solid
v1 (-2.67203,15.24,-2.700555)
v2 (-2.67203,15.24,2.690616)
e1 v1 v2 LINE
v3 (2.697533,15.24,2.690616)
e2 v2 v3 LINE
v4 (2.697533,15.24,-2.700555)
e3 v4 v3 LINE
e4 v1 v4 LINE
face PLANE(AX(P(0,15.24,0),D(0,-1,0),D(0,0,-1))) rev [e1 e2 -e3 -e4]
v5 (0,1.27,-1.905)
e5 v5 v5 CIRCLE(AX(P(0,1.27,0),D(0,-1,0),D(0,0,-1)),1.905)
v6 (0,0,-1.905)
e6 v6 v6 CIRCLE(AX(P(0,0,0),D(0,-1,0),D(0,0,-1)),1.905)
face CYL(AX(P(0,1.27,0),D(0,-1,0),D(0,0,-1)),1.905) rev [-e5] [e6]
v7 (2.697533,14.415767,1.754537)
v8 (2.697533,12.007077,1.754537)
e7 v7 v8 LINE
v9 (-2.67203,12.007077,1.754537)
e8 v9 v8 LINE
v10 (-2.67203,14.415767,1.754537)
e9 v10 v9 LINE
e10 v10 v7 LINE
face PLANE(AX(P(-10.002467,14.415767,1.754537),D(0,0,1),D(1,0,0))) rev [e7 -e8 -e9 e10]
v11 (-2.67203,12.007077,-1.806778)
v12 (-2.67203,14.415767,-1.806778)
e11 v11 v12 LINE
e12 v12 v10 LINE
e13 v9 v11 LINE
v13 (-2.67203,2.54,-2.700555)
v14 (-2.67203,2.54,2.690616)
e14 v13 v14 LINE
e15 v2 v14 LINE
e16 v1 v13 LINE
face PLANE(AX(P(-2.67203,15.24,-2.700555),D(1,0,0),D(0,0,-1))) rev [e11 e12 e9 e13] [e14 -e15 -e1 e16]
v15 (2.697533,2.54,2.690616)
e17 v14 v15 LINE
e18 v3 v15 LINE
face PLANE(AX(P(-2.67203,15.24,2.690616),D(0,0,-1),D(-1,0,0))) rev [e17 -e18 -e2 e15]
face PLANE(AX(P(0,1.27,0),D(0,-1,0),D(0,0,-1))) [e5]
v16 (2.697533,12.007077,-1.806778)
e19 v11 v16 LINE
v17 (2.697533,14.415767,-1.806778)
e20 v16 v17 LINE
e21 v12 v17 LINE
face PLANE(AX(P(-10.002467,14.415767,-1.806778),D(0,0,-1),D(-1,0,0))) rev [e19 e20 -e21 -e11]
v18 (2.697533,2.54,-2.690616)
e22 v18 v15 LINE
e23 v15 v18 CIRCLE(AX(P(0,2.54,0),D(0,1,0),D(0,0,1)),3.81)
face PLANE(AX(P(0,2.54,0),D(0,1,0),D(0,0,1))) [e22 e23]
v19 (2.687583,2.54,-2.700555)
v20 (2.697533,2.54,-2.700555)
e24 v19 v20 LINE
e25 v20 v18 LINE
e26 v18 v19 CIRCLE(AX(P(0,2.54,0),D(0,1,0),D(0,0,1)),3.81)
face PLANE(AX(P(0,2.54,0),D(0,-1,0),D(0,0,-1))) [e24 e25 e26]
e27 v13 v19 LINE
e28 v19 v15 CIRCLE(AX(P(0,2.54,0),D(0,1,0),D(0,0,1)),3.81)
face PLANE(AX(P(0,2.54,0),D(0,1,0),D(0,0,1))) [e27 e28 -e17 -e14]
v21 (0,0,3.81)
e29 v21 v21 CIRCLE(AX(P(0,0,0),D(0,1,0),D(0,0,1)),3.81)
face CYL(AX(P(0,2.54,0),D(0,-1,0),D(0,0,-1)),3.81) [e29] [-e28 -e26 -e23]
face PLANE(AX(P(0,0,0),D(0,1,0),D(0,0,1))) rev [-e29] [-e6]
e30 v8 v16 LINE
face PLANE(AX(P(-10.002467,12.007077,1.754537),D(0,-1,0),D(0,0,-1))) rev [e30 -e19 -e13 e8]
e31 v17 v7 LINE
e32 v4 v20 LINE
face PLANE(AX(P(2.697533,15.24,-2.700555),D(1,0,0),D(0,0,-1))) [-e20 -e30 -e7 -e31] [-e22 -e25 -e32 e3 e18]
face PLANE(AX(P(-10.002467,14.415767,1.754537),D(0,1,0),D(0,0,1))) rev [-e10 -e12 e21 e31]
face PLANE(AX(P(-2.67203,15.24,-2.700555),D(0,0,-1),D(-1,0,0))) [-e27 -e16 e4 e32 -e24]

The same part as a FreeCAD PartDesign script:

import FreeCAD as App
import Part
import Sketcher

V = App.Vector
Q = App.Units.Quantity

doc = App.newDocument("Part")
body = doc.addObject("PartDesign::Body", "Body")

# Sketch on XZ plane
sketch1 = body.newObject("Sketcher::SketchObject", "Sketch")
sketch1.AttachmentSupport = (doc.getObject("XZ_Plane"), [""])
sketch1.MapMode = "FlatFace"
sketch1.addGeometry(Part.Circle(V(0, 0, 0), V(0, 0, 1), 3.8), False)
sketch1.addConstraint([
    Sketcher.Constraint("Coincident", 0, 3, -1, 1),
    Sketcher.Constraint("Diameter", 0, Q("0.3 in")),
])
pad1 = body.newObject("PartDesign::Pad", "Pad")
pad1.Profile = sketch1
pad1.Length = Q("0.1 in")
pad1.Reversed = True

# Sketch on XZ plane
sketch2 = body.newObject("Sketcher::SketchObject", "Sketch001")
sketch2.AttachmentSupport = (doc.getObject("XZ_Plane"), [""])
sketch2.MapMode = "FlatFace"
sketch2.addGeometry(Part.Circle(V(0, 0, 0), V(0, 0, 1), 1.9), False)
sketch2.addConstraint([
    Sketcher.Constraint("Coincident", 0, 3, -1, 1),
    Sketcher.Constraint("Diameter", 0, Q("0.15 in")),
])
pocket1 = body.newObject("PartDesign::Pocket", "Pocket")
pocket1.Profile = sketch2
pocket1.Length = Q("0.05 in")

# Sketch on XZ plane
sketch3 = body.newObject("Sketcher::SketchObject", "Sketch002")
sketch3.AttachmentSupport = (doc.getObject("XZ_Plane"), [""])
sketch3.MapMode = "FlatFace"
sketch3.AttachmentOffset = App.Placement(V(0, 0, -0.1 * 25.4), App.Rotation())
sketch3.addGeometry([
    Part.LineSegment(V(-3, -3, 0), V(-3, 3, 0)),
    Part.LineSegment(V(-3, 3, 0), V(3, 3, 0)),
    Part.LineSegment(V(3, 3, 0), V(3, -3, 0)),
    Part.LineSegment(V(3, -3, 0), V(-3, -3, 0)),
], False)
sketch3.addConstraint([
    Sketcher.Constraint("Coincident", 0, 2, 1, 1),
    Sketcher.Constraint("Coincident", 1, 2, 2, 1),
    Sketcher.Constraint("Coincident", 2, 2, 3, 1),
    Sketcher.Constraint("Coincident", 3, 2, 0, 1),
    Sketcher.Constraint("Vertical", 0),
    Sketcher.Constraint("Horizontal", 1),
    Sketcher.Constraint("Vertical", 2),
    Sketcher.Constraint("Horizontal", 3),
    Sketcher.Constraint("DistanceX", 1, 1, 1, 2, Q("0.2114001 in")),
    Sketcher.Constraint("DistanceY", 0, 1, 0, 2, 5.391171),
    Sketcher.Constraint("DistanceX", 0, 2, -1, 1, 2.67203),
    Sketcher.Constraint("DistanceY", -1, 1, 0, 2, 2.690616),
])
pad2 = body.newObject("PartDesign::Pad", "Pad001")
pad2.Profile = sketch3
pad2.Length = Q("0.5 in")
pad2.Reversed = True

# Sketch on YZ plane
sketch4 = body.newObject("Sketcher::SketchObject", "Sketch003")
sketch4.AttachmentSupport = (doc.getObject("YZ_Plane"), [""])
sketch4.MapMode = "FlatFace"
sketch4.AttachmentOffset = App.Placement(V(0, 0, 2.697533), App.Rotation())
sketch4.addGeometry([
    Part.LineSegment(V(14.4, 1.8, 0), V(12, 1.8, 0)),
    Part.LineSegment(V(12, 1.8, 0), V(12, -1.8, 0)),
    Part.LineSegment(V(12, -1.8, 0), V(14.4, -1.8, 0)),
    Part.LineSegment(V(14.4, -1.8, 0), V(14.4, 1.8, 0)),
], False)
sketch4.addConstraint([
    Sketcher.Constraint("Coincident", 0, 2, 1, 1),
    Sketcher.Constraint("Coincident", 1, 2, 2, 1),
    Sketcher.Constraint("Coincident", 2, 2, 3, 1),
    Sketcher.Constraint("Coincident", 3, 2, 0, 1),
    Sketcher.Constraint("Horizontal", 0),
    Sketcher.Constraint("Vertical", 1),
    Sketcher.Constraint("Horizontal", 2),
    Sketcher.Constraint("Vertical", 3),
    Sketcher.Constraint("DistanceX", 0, 2, 0, 1, 2.408691),
    Sketcher.Constraint("DistanceY", 1, 2, 1, 1, 3.561315),
    Sketcher.Constraint("DistanceX", -1, 1, 0, 2, 12.007077),
    Sketcher.Constraint("DistanceY", -1, 1, 0, 2, 1.754537),
])
pocket2 = body.newObject("PartDesign::Pocket", "Pocket001")
pocket2.Profile = sketch4
pocket2.Length = Q("0.5 in")

doc.recompute()
